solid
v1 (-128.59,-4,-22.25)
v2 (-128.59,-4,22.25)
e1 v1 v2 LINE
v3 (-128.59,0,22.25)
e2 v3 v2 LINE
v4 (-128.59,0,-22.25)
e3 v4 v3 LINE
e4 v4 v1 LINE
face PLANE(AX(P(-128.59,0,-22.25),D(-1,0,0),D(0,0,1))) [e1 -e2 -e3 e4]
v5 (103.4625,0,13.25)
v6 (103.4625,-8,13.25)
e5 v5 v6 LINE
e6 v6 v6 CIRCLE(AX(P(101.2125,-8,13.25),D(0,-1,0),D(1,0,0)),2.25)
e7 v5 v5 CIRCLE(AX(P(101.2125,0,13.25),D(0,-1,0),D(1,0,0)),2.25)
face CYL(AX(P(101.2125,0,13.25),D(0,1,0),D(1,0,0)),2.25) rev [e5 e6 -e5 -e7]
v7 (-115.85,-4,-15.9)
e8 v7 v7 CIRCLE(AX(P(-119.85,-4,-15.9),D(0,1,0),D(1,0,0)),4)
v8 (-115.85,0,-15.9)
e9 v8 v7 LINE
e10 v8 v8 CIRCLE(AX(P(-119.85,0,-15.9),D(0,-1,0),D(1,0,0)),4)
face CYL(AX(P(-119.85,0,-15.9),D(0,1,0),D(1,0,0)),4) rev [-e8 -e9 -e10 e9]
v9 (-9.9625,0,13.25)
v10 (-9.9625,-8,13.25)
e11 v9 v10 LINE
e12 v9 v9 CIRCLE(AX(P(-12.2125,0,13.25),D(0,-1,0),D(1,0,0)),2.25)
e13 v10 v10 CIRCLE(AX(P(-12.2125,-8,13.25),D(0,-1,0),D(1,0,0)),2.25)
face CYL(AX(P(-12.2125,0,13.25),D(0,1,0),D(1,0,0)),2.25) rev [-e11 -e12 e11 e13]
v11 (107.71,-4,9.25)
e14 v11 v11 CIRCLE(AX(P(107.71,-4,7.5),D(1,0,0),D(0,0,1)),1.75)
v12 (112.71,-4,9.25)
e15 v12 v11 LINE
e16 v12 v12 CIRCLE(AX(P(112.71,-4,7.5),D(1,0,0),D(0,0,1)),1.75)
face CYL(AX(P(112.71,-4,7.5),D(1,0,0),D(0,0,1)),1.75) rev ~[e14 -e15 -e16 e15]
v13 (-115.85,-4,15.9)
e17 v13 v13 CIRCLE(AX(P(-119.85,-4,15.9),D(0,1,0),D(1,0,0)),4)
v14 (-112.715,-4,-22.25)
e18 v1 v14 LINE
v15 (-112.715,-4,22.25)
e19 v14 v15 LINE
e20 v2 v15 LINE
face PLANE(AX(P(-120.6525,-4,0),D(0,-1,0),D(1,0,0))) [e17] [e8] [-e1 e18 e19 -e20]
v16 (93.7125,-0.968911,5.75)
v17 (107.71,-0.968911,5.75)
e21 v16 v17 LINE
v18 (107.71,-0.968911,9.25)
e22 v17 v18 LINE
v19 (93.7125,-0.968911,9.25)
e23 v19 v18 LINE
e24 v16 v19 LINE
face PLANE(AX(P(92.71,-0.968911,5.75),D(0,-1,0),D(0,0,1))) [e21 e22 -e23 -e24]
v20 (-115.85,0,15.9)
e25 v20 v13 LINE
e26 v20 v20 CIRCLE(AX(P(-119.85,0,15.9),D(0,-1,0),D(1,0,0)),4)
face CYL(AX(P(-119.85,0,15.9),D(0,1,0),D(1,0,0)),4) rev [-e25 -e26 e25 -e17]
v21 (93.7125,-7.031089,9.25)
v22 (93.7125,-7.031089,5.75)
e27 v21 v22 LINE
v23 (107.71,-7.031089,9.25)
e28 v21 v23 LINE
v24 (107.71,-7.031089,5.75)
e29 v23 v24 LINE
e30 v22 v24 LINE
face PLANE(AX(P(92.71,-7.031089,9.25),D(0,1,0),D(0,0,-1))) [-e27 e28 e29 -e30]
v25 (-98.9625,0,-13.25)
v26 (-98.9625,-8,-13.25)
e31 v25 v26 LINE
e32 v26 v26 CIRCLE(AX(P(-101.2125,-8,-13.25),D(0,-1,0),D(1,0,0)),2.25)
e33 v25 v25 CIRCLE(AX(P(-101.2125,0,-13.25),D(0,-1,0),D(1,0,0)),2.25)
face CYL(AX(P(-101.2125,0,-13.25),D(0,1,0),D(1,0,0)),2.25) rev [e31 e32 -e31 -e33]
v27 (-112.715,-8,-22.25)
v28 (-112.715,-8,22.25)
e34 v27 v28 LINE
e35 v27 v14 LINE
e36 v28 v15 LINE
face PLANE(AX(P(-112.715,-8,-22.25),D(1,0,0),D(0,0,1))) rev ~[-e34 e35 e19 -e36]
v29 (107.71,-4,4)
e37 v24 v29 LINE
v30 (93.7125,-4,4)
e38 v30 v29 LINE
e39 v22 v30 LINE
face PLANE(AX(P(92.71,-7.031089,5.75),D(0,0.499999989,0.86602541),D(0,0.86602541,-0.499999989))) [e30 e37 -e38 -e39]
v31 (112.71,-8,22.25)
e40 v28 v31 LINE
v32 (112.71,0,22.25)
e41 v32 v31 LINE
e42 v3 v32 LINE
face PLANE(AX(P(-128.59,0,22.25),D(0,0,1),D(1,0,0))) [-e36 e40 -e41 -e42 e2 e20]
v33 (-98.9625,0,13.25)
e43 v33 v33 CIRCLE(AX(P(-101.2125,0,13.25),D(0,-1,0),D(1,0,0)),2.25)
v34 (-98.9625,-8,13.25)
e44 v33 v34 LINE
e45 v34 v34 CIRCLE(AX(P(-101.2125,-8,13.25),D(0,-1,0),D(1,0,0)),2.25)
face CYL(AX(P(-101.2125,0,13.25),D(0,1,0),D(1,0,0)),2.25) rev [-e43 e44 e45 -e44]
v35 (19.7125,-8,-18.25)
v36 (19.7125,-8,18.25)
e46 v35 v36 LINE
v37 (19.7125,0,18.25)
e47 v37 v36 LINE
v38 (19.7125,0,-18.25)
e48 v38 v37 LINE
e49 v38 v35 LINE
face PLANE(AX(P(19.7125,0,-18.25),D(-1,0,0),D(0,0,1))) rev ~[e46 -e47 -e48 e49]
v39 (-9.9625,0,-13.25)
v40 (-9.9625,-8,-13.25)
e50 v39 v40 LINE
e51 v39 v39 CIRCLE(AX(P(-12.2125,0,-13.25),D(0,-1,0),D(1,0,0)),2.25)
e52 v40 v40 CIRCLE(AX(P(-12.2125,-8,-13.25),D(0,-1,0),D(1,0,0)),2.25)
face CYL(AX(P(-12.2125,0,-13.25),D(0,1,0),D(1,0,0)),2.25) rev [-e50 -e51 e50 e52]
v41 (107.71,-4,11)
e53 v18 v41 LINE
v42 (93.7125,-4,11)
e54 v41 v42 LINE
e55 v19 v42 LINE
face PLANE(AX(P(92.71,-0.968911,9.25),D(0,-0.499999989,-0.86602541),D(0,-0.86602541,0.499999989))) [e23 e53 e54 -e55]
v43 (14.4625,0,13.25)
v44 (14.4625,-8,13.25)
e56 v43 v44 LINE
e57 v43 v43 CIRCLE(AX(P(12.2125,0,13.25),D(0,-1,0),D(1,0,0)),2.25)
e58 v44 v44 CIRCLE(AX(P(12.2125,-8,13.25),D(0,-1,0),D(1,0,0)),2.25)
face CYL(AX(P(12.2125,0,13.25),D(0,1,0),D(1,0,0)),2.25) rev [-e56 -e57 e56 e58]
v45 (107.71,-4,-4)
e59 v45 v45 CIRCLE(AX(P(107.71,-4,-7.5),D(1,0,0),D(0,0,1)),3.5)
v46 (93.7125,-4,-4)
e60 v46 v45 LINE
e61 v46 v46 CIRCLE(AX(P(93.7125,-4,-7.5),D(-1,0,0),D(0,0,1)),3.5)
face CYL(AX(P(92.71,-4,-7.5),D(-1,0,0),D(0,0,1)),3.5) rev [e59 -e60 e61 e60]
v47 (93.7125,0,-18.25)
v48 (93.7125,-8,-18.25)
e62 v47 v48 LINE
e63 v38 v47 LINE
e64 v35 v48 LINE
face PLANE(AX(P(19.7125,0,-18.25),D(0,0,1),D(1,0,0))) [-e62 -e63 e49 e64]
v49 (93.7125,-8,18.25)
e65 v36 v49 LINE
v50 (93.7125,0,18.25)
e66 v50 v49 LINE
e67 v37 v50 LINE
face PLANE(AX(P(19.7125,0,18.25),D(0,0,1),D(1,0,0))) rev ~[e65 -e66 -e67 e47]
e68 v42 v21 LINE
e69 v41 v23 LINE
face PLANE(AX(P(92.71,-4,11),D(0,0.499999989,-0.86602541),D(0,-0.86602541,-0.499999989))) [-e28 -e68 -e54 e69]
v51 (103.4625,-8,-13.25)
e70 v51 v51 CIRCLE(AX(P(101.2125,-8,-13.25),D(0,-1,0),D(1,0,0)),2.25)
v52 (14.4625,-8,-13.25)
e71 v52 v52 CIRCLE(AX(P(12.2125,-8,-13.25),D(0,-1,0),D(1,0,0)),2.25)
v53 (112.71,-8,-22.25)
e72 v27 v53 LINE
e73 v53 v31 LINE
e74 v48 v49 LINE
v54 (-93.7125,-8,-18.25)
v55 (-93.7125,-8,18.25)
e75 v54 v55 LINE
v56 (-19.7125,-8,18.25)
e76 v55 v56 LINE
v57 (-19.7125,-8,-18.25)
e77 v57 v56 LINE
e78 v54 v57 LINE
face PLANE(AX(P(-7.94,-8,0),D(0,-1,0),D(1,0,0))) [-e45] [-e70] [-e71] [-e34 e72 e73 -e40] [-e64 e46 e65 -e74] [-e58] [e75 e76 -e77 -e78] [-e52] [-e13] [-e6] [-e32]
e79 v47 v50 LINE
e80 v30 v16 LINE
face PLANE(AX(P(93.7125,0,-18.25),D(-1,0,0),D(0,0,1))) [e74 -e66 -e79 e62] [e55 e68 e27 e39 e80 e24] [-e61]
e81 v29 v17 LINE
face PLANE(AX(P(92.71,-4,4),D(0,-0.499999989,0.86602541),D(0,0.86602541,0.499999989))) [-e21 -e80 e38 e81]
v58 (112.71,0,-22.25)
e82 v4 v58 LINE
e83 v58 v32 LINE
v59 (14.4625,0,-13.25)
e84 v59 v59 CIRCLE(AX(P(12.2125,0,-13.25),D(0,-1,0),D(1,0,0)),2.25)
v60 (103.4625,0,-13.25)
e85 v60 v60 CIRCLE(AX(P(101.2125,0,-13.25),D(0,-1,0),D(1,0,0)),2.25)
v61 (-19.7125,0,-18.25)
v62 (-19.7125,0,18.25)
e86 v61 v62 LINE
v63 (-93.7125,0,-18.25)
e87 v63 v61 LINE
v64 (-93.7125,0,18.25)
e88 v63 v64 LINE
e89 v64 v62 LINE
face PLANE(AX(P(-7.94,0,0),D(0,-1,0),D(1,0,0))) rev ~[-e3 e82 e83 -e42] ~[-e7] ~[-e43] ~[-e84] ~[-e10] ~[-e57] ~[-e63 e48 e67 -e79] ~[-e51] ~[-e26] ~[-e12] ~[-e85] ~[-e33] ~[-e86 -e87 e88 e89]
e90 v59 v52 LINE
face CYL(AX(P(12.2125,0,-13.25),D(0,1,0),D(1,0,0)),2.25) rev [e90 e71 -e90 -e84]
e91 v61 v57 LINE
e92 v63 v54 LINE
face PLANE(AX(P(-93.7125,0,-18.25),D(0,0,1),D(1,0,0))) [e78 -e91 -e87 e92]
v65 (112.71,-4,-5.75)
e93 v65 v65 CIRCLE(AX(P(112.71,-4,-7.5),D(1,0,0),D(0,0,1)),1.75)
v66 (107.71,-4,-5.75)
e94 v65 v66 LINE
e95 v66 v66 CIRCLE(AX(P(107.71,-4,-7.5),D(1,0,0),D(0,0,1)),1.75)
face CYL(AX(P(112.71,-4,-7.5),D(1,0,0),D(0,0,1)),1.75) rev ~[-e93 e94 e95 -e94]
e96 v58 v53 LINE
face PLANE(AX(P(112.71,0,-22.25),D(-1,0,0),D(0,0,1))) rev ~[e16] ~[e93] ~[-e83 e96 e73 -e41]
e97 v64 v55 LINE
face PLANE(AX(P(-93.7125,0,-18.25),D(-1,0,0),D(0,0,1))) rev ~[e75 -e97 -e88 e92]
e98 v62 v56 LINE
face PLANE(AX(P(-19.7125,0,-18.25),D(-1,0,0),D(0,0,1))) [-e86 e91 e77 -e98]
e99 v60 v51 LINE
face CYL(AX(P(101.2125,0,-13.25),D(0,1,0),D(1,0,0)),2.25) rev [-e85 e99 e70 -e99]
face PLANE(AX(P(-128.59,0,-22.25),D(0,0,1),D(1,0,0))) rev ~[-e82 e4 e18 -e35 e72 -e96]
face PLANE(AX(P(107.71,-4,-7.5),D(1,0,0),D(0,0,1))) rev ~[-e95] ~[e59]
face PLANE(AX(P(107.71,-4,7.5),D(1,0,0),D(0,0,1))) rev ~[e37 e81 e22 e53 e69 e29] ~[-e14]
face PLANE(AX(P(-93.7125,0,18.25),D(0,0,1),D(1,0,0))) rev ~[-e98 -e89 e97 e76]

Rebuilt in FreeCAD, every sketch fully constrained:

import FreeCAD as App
import Part
import Sketcher
from FreeCAD import Vector
Q = App.Units.Quantity

doc = App.newDocument("Part")
body = doc.addObject("PartDesign::Body", "Body")

# Sketch on XZ plane
sketch1 = body.newObject("Sketcher::SketchObject", "Sketch")
sketch1.AttachmentSupport = (doc.getObject("XZ_Plane"), [""])
sketch1.MapMode = "FlatFace"
sketch1.addGeometry(Part.LineSegment(Vector(-128.6, 22.2, 0), Vector(-128.6, -22.2, 0)), False)
sketch1.addGeometry(Part.LineSegment(Vector(-128.6, -22.2, 0), Vector(112.7, -22.2, 0)), False)
sketch1.addGeometry(Part.LineSegment(Vector(112.7, -22.2, 0), Vector(112.7, 22.2, 0)), False)
sketch1.addGeometry(Part.LineSegment(Vector(112.7, 22.2, 0), Vector(-128.6, 22.2, 0)), False)
sketch1.addGeometry(Part.Circle(Vector(-119.8, -15.9, 0), Vector(0, 0, 1), 4), False)
sketch1.addGeometry(Part.Circle(Vector(-101.2, -13.2, 0), Vector(0, 0, 1), 2.2), False)
sketch1.addGeometry(Part.Circle(Vector(-12.2, -13.2, 0), Vector(0, 0, 1), 2.2), False)
sketch1.addGeometry(Part.Circle(Vector(12.2, -13.2, 0), Vector(0, 0, 1), 2.2), False)
sketch1.addGeometry(Part.Circle(Vector(101.2, -13.2, 0), Vector(0, 0, 1), 2.2), False)
sketch1.addGeometry(Part.LineSegment(Vector(-19.7, -18.2, 0), Vector(-93.7, -18.2, 0)), False)
sketch1.addGeometry(Part.LineSegment(Vector(-93.7, -18.2, 0), Vector(-93.7, 18.2, 0)), False)
sketch1.addGeometry(Part.LineSegment(Vector(-93.7, 18.2, 0), Vector(-19.7, 18.2, 0)), False)
sketch1.addGeometry(Part.LineSegment(Vector(-19.7, 18.2, 0), Vector(-19.7, -18.2, 0)), False)
sketch1.addGeometry(Part.Circle(Vector(-101.2, 13.2, 0), Vector(0, 0, 1), 2.2), False)
sketch1.addGeometry(Part.Circle(Vector(-119.8, 15.9, 0), Vector(0, 0, 1), 4), False)
sketch1.addGeometry(Part.Circle(Vector(-12.2, 13.2, 0), Vector(0, 0, 1), 2.2), False)
sketch1.addGeometry(Part.LineSegment(Vector(93.7, -18.2, 0), Vector(19.7, -18.2, 0)), False)
sketch1.addGeometry(Part.LineSegment(Vector(19.7, -18.2, 0), Vector(19.7, 18.2, 0)), False)
sketch1.addGeometry(Part.LineSegment(Vector(19.7, 18.2, 0), Vector(93.7, 18.2, 0)), False)
sketch1.addGeometry(Part.LineSegment(Vector(93.7, 18.2, 0), Vector(93.7, -18.2, 0)), False)
sketch1.addGeometry(Part.Circle(Vector(12.2, 13.2, 0), Vector(0, 0, 1), 2.2), False)
sketch1.addGeometry(Part.Circle(Vector(101.2, 13.2, 0), Vector(0, 0, 1), 2.2), False)
sketch1.addConstraint(Sketcher.Constraint("Coincident", 0, 2, 1, 1))
sketch1.addConstraint(Sketcher.Constraint("Coincident", 1, 2, 2, 1))
sketch1.addConstraint(Sketcher.Constraint("Coincident", 2, 2, 3, 1))
sketch1.addConstraint(Sketcher.Constraint("Coincident", 3, 2, 0, 1))
sketch1.addConstraint(Sketcher.Constraint("Coincident", 9, 2, 10, 1))
sketch1.addConstraint(Sketcher.Constraint("Coincident", 10, 2, 11, 1))
sketch1.addConstraint(Sketcher.Constraint("Coincident", 11, 2, 12, 1))
sketch1.addConstraint(Sketcher.Constraint("Coincident", 12, 2, 9, 1))
sketch1.addConstraint(Sketcher.Constraint("Coincident", 16, 2, 17, 1))
sketch1.addConstraint(Sketcher.Constraint("Coincident", 17, 2, 18, 1))
sketch1.addConstraint(Sketcher.Constraint("Coincident", 18, 2, 19, 1))
sketch1.addConstraint(Sketcher.Constraint("Coincident", 19, 2, 16, 1))
sketch1.addConstraint(Sketcher.Constraint("Vertical", 0))
sketch1.addConstraint(Sketcher.Constraint("Horizontal", 1))
sketch1.addConstraint(Sketcher.Constraint("Vertical", 2))
sketch1.addConstraint(Sketcher.Constraint("Horizontal", 3))
sketch1.addConstraint(Sketcher.Constraint("Horizontal", 9))
sketch1.addConstraint(Sketcher.Constraint("Vertical", 10))
sketch1.addConstraint(Sketcher.Constraint("Horizontal", 11))
sketch1.addConstraint(Sketcher.Constraint("Vertical", 12))
sketch1.addConstraint(Sketcher.Constraint("Horizontal", 16))
sketch1.addConstraint(Sketcher.Constraint("Vertical", 17))
sketch1.addConstraint(Sketcher.Constraint("Horizontal", 18))
sketch1.addConstraint(Sketcher.Constraint("Vertical", 19))
sketch1.addConstraint(Sketcher.Constraint("Equal", 5, 6))
sketch1.addConstraint(Sketcher.Constraint("Equal", 6, 7))
sketch1.addConstraint(Sketcher.Constraint("Equal", 7, 8))
sketch1.addConstraint(Sketcher.Constraint("Equal", 8, 13))
sketch1.addConstraint(Sketcher.Constraint("Equal", 4, 14))
sketch1.addConstraint(Sketcher.Constraint("Equal", 13, 15))
sketch1.addConstraint(Sketcher.Constraint("Equal", 15, 20))
sketch1.addConstraint(Sketcher.Constraint("Equal", 20, 21))
sketch1.addConstraint(Sketcher.Constraint("Symmetric", 8, 3, 13, 3, -1, 1))
sketch1.addConstraint(Sketcher.Constraint("Symmetric", 7, 3, 15, 3, -1, 1))
sketch1.addConstraint(Sketcher.Constraint("Symmetric", 6, 3, 20, 3, -1, 1))
sketch1.addConstraint(Sketcher.Constraint("Symmetric", 5, 3, 21, 3, -1, 1))
sketch1.addConstraint(Sketcher.Constraint("Symmetric", 11, 2, 16, 2, -1, 1))
sketch1.addConstraint(Sketcher.Constraint("Symmetric", 9, 2, 18, 2, -1, 1))
sketch1.addConstraint(Sketcher.Constraint("Symmetric", 6, 3, 7, 3, -2))
sketch1.addConstraint(Sketcher.Constraint("Symmetric", 5, 3, 8, 3, -2))
sketch1.addConstraint(Sketcher.Constraint("Symmetric", 4, 3, 14, 3, -1))
sketch1.addConstraint(Sketcher.Constraint("Horizontal", 5, 3, 6, 3))
sketch1.addConstraint(Sketcher.Constraint("Horizontal", 12, 2, 16, 2))
sketch1.addConstraint(Sketcher.Constraint("Diameter", 4, Q("8 mm")))
sketch1.addConstraint(Sketcher.Constraint("Diameter", 5, Q("4.5 mm")))
sketch1.addConstraint(Sketcher.Constraint("DistanceX", 9, 2, 9, 1, Q("74 mm")))
sketch1.addConstraint(Sketcher.Constraint("DistanceX", 1, 1, 1, 2, Q("241.3 mm")))
sketch1.addConstraint(Sketcher.Constraint("DistanceY", 0, 2, 0, 1, Q("44.5 mm")))
sketch1.addConstraint(Sketcher.Constraint("DistanceY", 10, 1, 10, 2, Q("36.5 mm")))
sketch1.addConstraint(Sketcher.Constraint("DistanceX", 5, 3, 6, 3, Q("89 mm")))
sketch1.addConstraint(Sketcher.Constraint("DistanceY", 0, 2, 5, 3, Q("9 mm")))
sketch1.addConstraint(Sketcher.Constraint("DistanceY", 21, 3, 2, 2, Q("9 mm")))
sketch1.addConstraint(Sketcher.Constraint("DistanceY", 4, 3, -1, 1, Q("15.9 mm")))
sketch1.addConstraint(Sketcher.Constraint("DistanceX", 5, 3, 9, 2, Q("7.5 mm")))
sketch1.addConstraint(Sketcher.Constraint("DistanceX", 4, 3, -1, 1, Q("119.85 mm")))
sketch1.addConstraint(Sketcher.Constraint("DistanceX", 0, 2, -1, 1, Q("128.59 mm")))
sketch1.addConstraint(Sketcher.Constraint("DistanceX", 6, 3, 7, 3, Q("24.425 mm")))
pad1 = body.newObject("PartDesign::Pad", "Pad")
pad1.Profile = sketch1
pad1.Length = 8

# Sketch on XZ plane
sketch2 = body.newObject("Sketcher::SketchObject", "Sketch001")
sketch2.AttachmentSupport = (doc.getObject("XZ_Plane"), [""])
sketch2.MapMode = "FlatFace"
sketch2.AttachmentOffset = App.Placement(Vector(0, 0, 8), App.Rotation())
sketch2.addGeometry(Part.LineSegment(Vector(-129, 22, 0), Vector(-129, -22, 0)), False)
sketch2.addGeometry(Part.LineSegment(Vector(-129, -22, 0), Vector(-113, -22, 0)), False)
sketch2.addGeometry(Part.LineSegment(Vector(-113, -22, 0), Vector(-113, 22, 0)), False)
sketch2.addGeometry(Part.LineSegment(Vector(-113, 22, 0), Vector(-129, 22, 0)), False)
sketch2.addConstraint(Sketcher.Constraint("Coincident", 0, 2, 1, 1))
sketch2.addConstraint(Sketcher.Constraint("Coincident", 1, 2, 2, 1))
sketch2.addConstraint(Sketcher.Constraint("Coincident", 2, 2, 3, 1))
sketch2.addConstraint(Sketcher.Constraint("Coincident", 3, 2, 0, 1))
sketch2.addConstraint(Sketcher.Constraint("Vertical", 0))
sketch2.addConstraint(Sketcher.Constraint("Horizontal", 1))
sketch2.addConstraint(Sketcher.Constraint("Vertical", 2))
sketch2.addConstraint(Sketcher.Constraint("Horizontal", 3))
sketch2.addConstraint(Sketcher.Constraint("DistanceY", 0, 2, 0, 1, Q("44.5 mm")))
sketch2.addConstraint(Sketcher.Constraint("DistanceX", 1, 1, 1, 2, Q("15.875 mm")))
sketch2.addConstraint(Sketcher.Constraint("DistanceX", 0, 2, -1, 1, Q("128.59 mm")))
sketch2.addConstraint(Sketcher.Constraint("DistanceY", 0, 2, -1, 1, Q("22.25 mm")))
pocket1 = body.newObject("PartDesign::Pocket", "Pocket")
pocket1.Profile = sketch2
pocket1.Length = 4

# Sketch on YZ plane
sketch3 = body.newObject("Sketcher::SketchObject", "Sketch002")
sketch3.AttachmentSupport = (doc.getObject("YZ_Plane"), [""])
sketch3.MapMode = "FlatFace"
sketch3.AttachmentOffset = App.Placement(Vector(0, 0, 112.71), App.Rotation())
sketch3.addGeometry(Part.Circle(Vector(-4, -7.5, 0), Vector(0, 0, 1), 1.8), False)
sketch3.addGeometry(Part.Circle(Vector(-4, 7.5, 0), Vector(0, 0, 1), 1.8), False)
sketch3.addConstraint(Sketcher.Constraint("Equal", 0, 1))
sketch3.addConstraint(Sketcher.Constraint("Symmetric", 0, 3, 1, 3, -1))
sketch3.addConstraint(Sketcher.Constraint("Diameter", 0, Q("3.5 mm")))
sketch3.addConstraint(Sketcher.Constraint("DistanceX", 0, 3, -1, 1, Q("4 mm")))
sketch3.addConstraint(Sketcher.Constraint("DistanceY", 0, 3, 1, 3, Q("15 mm")))
pocket2 = body.newObject("PartDesign::Pocket", "Pocket001")
pocket2.Profile = sketch3
pocket2.Length = 10

# Sketch on YZ plane
sketch4 = body.newObject("Sketcher::SketchObject", "Sketch003")
sketch4.AttachmentSupport = (doc.getObject("YZ_Plane"), [""])
sketch4.MapMode = "FlatFace"
sketch4.AttachmentOffset = App.Placement(Vector(0, 0, 92.71), App.Rotation())
sketch4.addGeometry(Part.Circle(Vector(-4, -7.5, 0), Vector(0, 0, 1), 3.5), False)
sketch4.addGeometry(Part.LineSegment(Vector(-4, 11, 0), Vector(-7, 9.2, 0)), False)
sketch4.addGeometry(Part.LineSegment(Vector(-7, 9.2, 0), Vector(-7, 5.8, 0)), False)
sketch4.addGeometry(Part.LineSegment(Vector(-7, 5.8, 0), Vector(-4, 4, 0)), False)
sketch4.addGeometry(Part.LineSegment(Vector(-4, 4, 0), Vector(-1, 5.8, 0)), False)
sketch4.addGeometry(Part.LineSegment(Vector(-1, 5.8, 0), Vector(-1, 9.2, 0)), False)
sketch4.addGeometry(Part.LineSegment(Vector(-1, 9.2, 0), Vector(-4, 11, 0)), False)
sketch4.addConstraint(Sketcher.Constraint("Coincident", 1, 2, 2, 1))
sketch4.addConstraint(Sketcher.Constraint("Coincident", 2, 2, 3, 1))
sketch4.addConstraint(Sketcher.Constraint("Coincident", 3, 2, 4, 1))
sketch4.addConstraint(Sketcher.Constraint("Coincident", 4, 2, 5, 1))
sketch4.addConstraint(Sketcher.Constraint("Coincident", 5, 2, 6, 1))
sketch4.addConstraint(Sketcher.Constraint("Coincident", 6, 2, 1, 1))
sketch4.addConstraint(Sketcher.Constraint("Vertical", 2))
sketch4.addConstraint(Sketcher.Constraint("Vertical", 5))
sketch4.addConstraint(Sketcher.Constraint("Parallel", 1, 4))
sketch4.addConstraint(Sketcher.Constraint("Parallel", 3, 6))
sketch4.addConstraint(Sketcher.Constraint("Horizontal", 2, 2, 4, 2))
sketch4.addConstraint(Sketcher.Constraint("Horizontal", 1, 2, 5, 2))
sketch4.addConstraint(Sketcher.Constraint("Vertical", 0, 3, 3, 2))
sketch4.addConstraint(Sketcher.Constraint("Vertical", 3, 2, 6, 2))
sketch4.addConstraint(Sketcher.Constraint("Diameter", 0, Q("7 mm")))
sketch4.addConstraint(Sketcher.Constraint("Angle", 1, Q("-150.000001 deg")))
sketch4.addConstraint(Sketcher.Constraint("DistanceY", 2, 2, 2, 1, Q("3.5 mm")))
sketch4.addConstraint(Sketcher.Constraint("DistanceX", 0, 3, -1, 1, Q("4 mm")))
sketch4.addConstraint(Sketcher.Constraint("DistanceY", -1, 1, 3, 2, Q("4 mm")))
sketch4.addConstraint(Sketcher.Constraint("DistanceY", -1, 1, 6, 2, Q("11 mm")))
sketch4.addConstraint(Sketcher.Constraint("DistanceY", 0, 3, -1, 1, Q("7.5 mm")))
pocket3 = body.newObject("PartDesign::Pocket", "Pocket002")
pocket3.Profile = sketch4
pocket3.Length = 15
pocket3.Reversed = True

doc.recompute()
